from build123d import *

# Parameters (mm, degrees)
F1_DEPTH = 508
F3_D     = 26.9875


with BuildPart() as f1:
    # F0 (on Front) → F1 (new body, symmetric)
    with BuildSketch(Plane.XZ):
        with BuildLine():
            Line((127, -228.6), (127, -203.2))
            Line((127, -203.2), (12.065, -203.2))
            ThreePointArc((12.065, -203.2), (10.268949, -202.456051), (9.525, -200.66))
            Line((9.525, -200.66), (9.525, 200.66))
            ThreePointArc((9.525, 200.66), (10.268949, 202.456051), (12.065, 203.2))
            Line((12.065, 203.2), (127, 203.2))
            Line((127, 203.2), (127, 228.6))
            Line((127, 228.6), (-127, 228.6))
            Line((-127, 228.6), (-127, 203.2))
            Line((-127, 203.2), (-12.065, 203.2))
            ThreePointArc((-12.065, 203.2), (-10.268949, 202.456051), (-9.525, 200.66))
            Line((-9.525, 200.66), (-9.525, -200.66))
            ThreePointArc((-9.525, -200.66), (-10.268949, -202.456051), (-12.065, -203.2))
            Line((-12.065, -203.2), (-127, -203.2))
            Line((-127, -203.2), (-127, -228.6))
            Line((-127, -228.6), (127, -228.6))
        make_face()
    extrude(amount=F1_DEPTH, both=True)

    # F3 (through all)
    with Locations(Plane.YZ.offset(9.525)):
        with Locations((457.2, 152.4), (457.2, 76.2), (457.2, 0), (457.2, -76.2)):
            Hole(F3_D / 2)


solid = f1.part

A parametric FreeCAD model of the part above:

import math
import FreeCAD as App
import Part
import Sketcher

V = App.Vector
Q = App.Units.Quantity

doc = App.newDocument("Part")
body = doc.addObject("PartDesign::Body", "Body")

# Sketch on XZ plane
sketch1 = body.newObject("Sketcher::SketchObject", "Sketch")
sketch1.AttachmentSupport = (doc.getObject("XZ_Plane"), [""])
sketch1.MapMode = "FlatFace"
sketch1.addGeometry([
    Part.LineSegment(V(127, -228.6, 0), V(127, -203.2, 0)),  # 0
    Part.LineSegment(V(127, -203.2, 0), V(12.065, -203.2, 0)),  # 1
    Part.ArcOfCircle(Part.Circle(V(12.065001, -200.659999, 0), V(0, 0, 1), 2.540001), math.radians(-179.999983), math.radians(-90.000017)),  # 2
    Part.LineSegment(V(9.525, -200.66, 0), V(9.525, 200.66, 0)),  # 3
    Part.ArcOfCircle(Part.Circle(V(12.065001, 200.659999, 0), V(0, 0, 1), 2.540001), math.radians(90.000017), math.radians(179.999983)),  # 4
    Part.LineSegment(V(12.065, 203.2, 0), V(127, 203.2, 0)),  # 5
    Part.LineSegment(V(127, 203.2, 0), V(127, 228.6, 0)),  # 6
    Part.LineSegment(V(127, 228.6, 0), V(-127, 228.6, 0)),  # 7
    Part.LineSegment(V(-127, 228.6, 0), V(-127, 203.2, 0)),  # 8
    Part.LineSegment(V(-127, 203.2, 0), V(-12.065, 203.2, 0)),  # 9
    Part.ArcOfCircle(Part.Circle(V(-12.065001, 200.659999, 0), V(0, 0, 1), 2.540001), math.radians(0.000017), math.radians(89.999983)),  # 10
    Part.LineSegment(V(-9.525, 200.66, 0), V(-9.525, -200.66, 0)),  # 11
    Part.ArcOfCircle(Part.Circle(V(-12.065001, -200.659999, 0), V(0, 0, 1), 2.540001), math.radians(-89.999983), math.radians(-0.000017)),  # 12
    Part.LineSegment(V(-12.065, -203.2, 0), V(-127, -203.2, 0)),  # 13
    Part.LineSegment(V(-127, -203.2, 0), V(-127, -228.6, 0)),  # 14
    Part.LineSegment(V(-127, -228.6, 0), V(127, -228.6, 0)),  # 15
], False)
sketch1.addConstraint([
    Sketcher.Constraint("Coincident", 0, 2, 1, 1),
    Sketcher.Constraint("Tangent", 1, 2, 2, 2),
    Sketcher.Constraint("Tangent", 2, 1, 3, 1),
    Sketcher.Constraint("Tangent", 3, 2, 4, 2),
    Sketcher.Constraint("Tangent", 4, 1, 5, 1),
    Sketcher.Constraint("Coincident", 5, 2, 6, 1),
    Sketcher.Constraint("Coincident", 6, 2, 7, 1),
    Sketcher.Constraint("Coincident", 7, 2, 8, 1),
    Sketcher.Constraint("Coincident", 8, 2, 9, 1),
    Sketcher.Constraint("Tangent", 9, 2, 10, 2),
    Sketcher.Constraint("Tangent", 10, 1, 11, 1),
    Sketcher.Constraint("Tangent", 11, 2, 12, 2),
    Sketcher.Constraint("Tangent", 12, 1, 13, 1),
    Sketcher.Constraint("Coincident", 13, 2, 14, 1),
    Sketcher.Constraint("Coincident", 14, 2, 15, 1),
    Sketcher.Constraint("Coincident", 15, 2, 0, 1),
    Sketcher.Constraint("Vertical", 0),
    Sketcher.Constraint("Horizontal", 1),
    Sketcher.Constraint("Vertical", 3),
    Sketcher.Constraint("Horizontal", 5),
    Sketcher.Constraint("Vertical", 6),
    Sketcher.Constraint("Horizontal", 7),
    Sketcher.Constraint("Vertical", 8),
    Sketcher.Constraint("Horizontal", 9),
    Sketcher.Constraint("Vertical", 11),
    Sketcher.Constraint("Horizontal", 13),
    Sketcher.Constraint("Vertical", 14),
    Sketcher.Constraint("Horizontal", 15),
    Sketcher.Constraint("Equal", 2, 4),
    Sketcher.Constraint("Equal", 4, 10),
    Sketcher.Constraint("Equal", 10, 12),
    Sketcher.Constraint("Symmetric", 2, 3, 10, 3, -1, 1),
    Sketcher.Constraint("Symmetric", 5, 2, 13, 2, -1, 1),
    Sketcher.Constraint("Symmetric", 7, 2, 15, 2, -1, 1),
    Sketcher.Constraint("Symmetric", 5, 2, 8, 2, -2),
    Sketcher.Constraint("Radius", 2, Q("0.1 in")),
    Sketcher.Constraint("DistanceX", 7, 2, 7, 1, Q("10 in")),
    Sketcher.Constraint("DistanceY", 0, 1, 0, 2, Q("1 in")),
    Sketcher.Constraint("DistanceY", 3, 1, 3, 2, Q("15.8 in")),
    Sketcher.Constraint("DistanceX", 1, 2, 1, 1, Q("4.525 in")),
])
pad1 = body.newObject("PartDesign::Pad", "Pad")
pad1.Profile = sketch1
pad1.Length = Q("40 in")
pad1.Midplane = True

# Sketch on YZ plane
sketch2 = body.newObject("Sketcher::SketchObject", "Sketch001")
sketch2.AttachmentSupport = (doc.getObject("YZ_Plane"), [""])
sketch2.MapMode = "FlatFace"
sketch2.AttachmentOffset = App.Placement(V(0, 0, 0.375 * 25.4), App.Rotation())
sketch2.addGeometry([
    Part.Circle(V(457.2, 152.4, 0), V(0, 0, 1), 13.49375),
    Part.Circle(V(457.2, 76.2, 0), V(0, 0, 1), 13.49375),
    Part.Circle(V(457.2, 0, 0), V(0, 0, 1), 13.49375),
    Part.Circle(V(457.2, -76.2, 0), V(0, 0, 1), 13.49375),
], False)
sketch2.addConstraint([
    Sketcher.Constraint("Equal", 0, 1),
    Sketcher.Constraint("Equal", 1, 2),
    Sketcher.Constraint("Equal", 2, 3),
    Sketcher.Constraint("Symmetric", 1, 3, 3, 3, -1),
    Sketcher.Constraint("PointOnObject", 2, 3, -1),
    Sketcher.Constraint("Vertical", 0, 3, 1, 3),
    Sketcher.Constraint("Vertical", 1, 3, 2, 3),
    Sketcher.Constraint("Diameter", 0, Q("1.0625 in")),
    Sketcher.Constraint("DistanceX", -1, 1, 0, 3, Q("18 in")),
    Sketcher.Constraint("DistanceY", -1, 1, 0, 3, Q("6 in")),
    Sketcher.Constraint("DistanceY", -1, 1, 1, 3, Q("3 in")),
])
doc.recompute()
hole = body.newObject("PartDesign::Hole", "Hole")
hole.Profile = sketch2
hole.ThreadType = "None"
hole.Diameter = Q("1.0625 in")
hole.DepthType = "ThroughAll"

doc.recompute()
